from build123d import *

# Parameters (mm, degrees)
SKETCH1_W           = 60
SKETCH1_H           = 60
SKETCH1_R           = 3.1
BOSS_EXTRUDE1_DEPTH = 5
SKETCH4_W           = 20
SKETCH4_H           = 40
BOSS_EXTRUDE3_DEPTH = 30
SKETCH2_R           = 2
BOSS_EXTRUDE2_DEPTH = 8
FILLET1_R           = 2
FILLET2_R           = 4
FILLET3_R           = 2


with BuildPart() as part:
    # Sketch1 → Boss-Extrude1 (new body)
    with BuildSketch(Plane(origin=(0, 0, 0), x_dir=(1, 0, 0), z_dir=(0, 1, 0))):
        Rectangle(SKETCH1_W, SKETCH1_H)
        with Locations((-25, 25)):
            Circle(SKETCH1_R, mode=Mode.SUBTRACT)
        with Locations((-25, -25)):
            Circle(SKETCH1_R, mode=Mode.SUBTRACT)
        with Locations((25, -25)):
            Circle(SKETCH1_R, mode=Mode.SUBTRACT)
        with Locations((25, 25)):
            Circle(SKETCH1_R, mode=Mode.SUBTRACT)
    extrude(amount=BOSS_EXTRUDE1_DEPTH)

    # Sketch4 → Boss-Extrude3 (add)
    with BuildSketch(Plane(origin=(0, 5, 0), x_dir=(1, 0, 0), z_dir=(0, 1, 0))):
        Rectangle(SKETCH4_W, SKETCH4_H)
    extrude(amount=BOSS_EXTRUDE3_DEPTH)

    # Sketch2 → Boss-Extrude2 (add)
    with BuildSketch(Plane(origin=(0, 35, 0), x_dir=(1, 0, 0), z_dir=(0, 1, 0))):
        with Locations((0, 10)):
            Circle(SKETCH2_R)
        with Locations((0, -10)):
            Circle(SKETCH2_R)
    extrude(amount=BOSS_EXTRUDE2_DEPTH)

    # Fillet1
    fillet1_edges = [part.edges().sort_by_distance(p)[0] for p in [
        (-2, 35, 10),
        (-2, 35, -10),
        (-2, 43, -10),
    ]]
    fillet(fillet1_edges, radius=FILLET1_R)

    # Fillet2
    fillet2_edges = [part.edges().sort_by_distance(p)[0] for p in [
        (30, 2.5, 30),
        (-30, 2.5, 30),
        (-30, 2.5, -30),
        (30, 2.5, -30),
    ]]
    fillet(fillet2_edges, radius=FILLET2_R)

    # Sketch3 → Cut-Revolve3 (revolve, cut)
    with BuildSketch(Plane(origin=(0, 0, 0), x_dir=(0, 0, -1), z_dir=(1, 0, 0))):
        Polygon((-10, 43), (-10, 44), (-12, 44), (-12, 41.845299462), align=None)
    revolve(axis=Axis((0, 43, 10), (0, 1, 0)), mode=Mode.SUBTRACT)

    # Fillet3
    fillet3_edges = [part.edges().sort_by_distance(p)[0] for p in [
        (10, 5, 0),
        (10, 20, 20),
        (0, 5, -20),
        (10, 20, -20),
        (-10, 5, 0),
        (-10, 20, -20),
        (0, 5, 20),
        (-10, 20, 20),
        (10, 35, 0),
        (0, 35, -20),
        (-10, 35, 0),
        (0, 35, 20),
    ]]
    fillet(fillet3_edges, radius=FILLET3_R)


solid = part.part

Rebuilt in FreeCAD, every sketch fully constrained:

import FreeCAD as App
import Part
import Sketcher
Q = App.Units.Quantity


def edges_at(feature, points):
    """Names of the edges that pass closest to the given points."""
    edges = feature.Shape.Edges
    near = lambda p: min(range(len(edges)), key=lambda i: edges[i].distToShape(Part.Vertex(*p))[0])
    return sorted({f"Edge{near(p) + 1}" for p in points})


def add_polygon(sketch, points):
    """Adds a closed chain of lines whose ends are joined by coincident constraints."""
    first, n = sketch.GeometryCount, len(points)
    for a, b in zip(points, points[1:] + points[:1]):
        sketch.addGeometry(Part.LineSegment(App.Vector(*a, 0), App.Vector(*b, 0)), False)
    for i in range(n):
        sketch.addConstraint(Sketcher.Constraint("Coincident", first + i, 2, first + (i + 1) % n, 1))

doc = App.newDocument("Part")
body = doc.addObject("PartDesign::Body", "Body")

# Sketch on XZ plane
sketch1 = doc.addObject("Sketcher::SketchObject", "Sketch")
body.addObject(sketch1)
sketch1.AttachmentSupport = (doc.XZ_Plane, [""])
sketch1.MapMode = "FlatFace"
add_polygon(sketch1, [(-30, -30), (-30, 30), (30, 30), (30, -30)])  # lines 0-3
sketch1.addGeometry(Part.Circle(App.Vector(-25, 25, 0), App.Vector(0, 0, 1), 3.1), False)  # 4
sketch1.addGeometry(Part.Circle(App.Vector(25, 25, 0), App.Vector(0, 0, 1), 3.1), False)  # 5
sketch1.addGeometry(Part.Circle(App.Vector(-25, -25, 0), App.Vector(0, 0, 1), 3.1), False)  # 6
sketch1.addGeometry(Part.Circle(App.Vector(25, -25, 0), App.Vector(0, 0, 1), 3.1), False)  # 7
sketch1.addConstraint([
    Sketcher.Constraint("Vertical", 0),
    Sketcher.Constraint("Horizontal", 1),
    Sketcher.Constraint("Vertical", 2),
    Sketcher.Constraint("Horizontal", 3),
    Sketcher.Constraint("Equal", 4, 5),
    Sketcher.Constraint("Equal", 5, 6),
    Sketcher.Constraint("Equal", 6, 7),
    Sketcher.Constraint("Symmetric", 5, 3, 6, 3, -1, 1),
    Sketcher.Constraint("Symmetric", 4, 3, 7, 3, -1, 1),
    Sketcher.Constraint("Symmetric", 0, 2, 2, 2, -1, 1),
    Sketcher.Constraint("Symmetric", 4, 3, 5, 3, -2),
    Sketcher.Constraint("Equal", 3, 0),
    Sketcher.Constraint("Diameter", 4, Q("6.2 mm")),
    Sketcher.Constraint("DistanceX", 1, 1, 1, 2, Q("60 mm")),
    Sketcher.Constraint("DistanceX", 4, 3, -1, 1, Q("25 mm")),
    Sketcher.Constraint("DistanceY", -1, 1, 4, 3, Q("25 mm")),
])
pad1 = doc.addObject("PartDesign::Pad", "Pad")
body.addObject(pad1)
pad1.Profile = sketch1
pad1.Length = 5
pad1.Reversed = True

# Sketch on XZ plane
sketch2 = doc.addObject("Sketcher::SketchObject", "Sketch001")
body.addObject(sketch2)
sketch2.AttachmentSupport = (doc.XZ_Plane, [""])
sketch2.MapMode = "FlatFace"
sketch2.AttachmentOffset = App.Placement(App.Vector(0, 0, -5), App.Rotation())
add_polygon(sketch2, [(-10, -20), (-10, 20), (10, 20), (10, -20)])  # lines 0-3
sketch2.addConstraint([
    Sketcher.Constraint("Vertical", 0),
    Sketcher.Constraint("Horizontal", 1),
    Sketcher.Constraint("Vertical", 2),
    Sketcher.Constraint("Horizontal", 3),
    Sketcher.Constraint("Symmetric", 0, 2, 2, 2, -1, 1),
    Sketcher.Constraint("DistanceX", 1, 1, 1, 2, Q("20 mm")),
    Sketcher.Constraint("DistanceY", 0, 1, 0, 2, Q("40 mm")),
])
pad2 = doc.addObject("PartDesign::Pad", "Pad001")
body.addObject(pad2)
pad2.Profile = sketch2
pad2.Length = 30
pad2.Reversed = True

# Sketch on XZ plane
sketch3 = doc.addObject("Sketcher::SketchObject", "Sketch002")
body.addObject(sketch3)
sketch3.AttachmentSupport = (doc.XZ_Plane, [""])
sketch3.MapMode = "FlatFace"
sketch3.AttachmentOffset = App.Placement(App.Vector(0, 0, -35), App.Rotation())
sketch3.addGeometry([
    Part.Circle(App.Vector(0, -10, 0), App.Vector(0, 0, 1), 2),
    Part.Circle(App.Vector(0, 10, 0), App.Vector(0, 0, 1), 2),
], False)
sketch3.addConstraint([
    Sketcher.Constraint("Equal", 0, 1),
    Sketcher.Constraint("Symmetric", 0, 3, 1, 3, -1, 1),
    Sketcher.Constraint("PointOnObject", 0, 3, -2),
    Sketcher.Constraint("Diameter", 0, Q("4 mm")),
    Sketcher.Constraint("DistanceY", 0, 3, -1, 1, Q("10 mm")),
])
pad3 = doc.addObject("PartDesign::Pad", "Pad002")
body.addObject(pad3)
pad3.Profile = sketch3
pad3.Length = 8
pad3.Reversed = True
doc.recompute()

fillet = doc.addObject("PartDesign::Fillet", "Fillet")
body.addObject(fillet)
fillet.Base = (pad3, edges_at(pad3, [(-2, 35, 10), (-2, 35, -10), (-2, 43, -10)]))
fillet.Radius = 2
doc.recompute()

fillet2 = doc.addObject("PartDesign::Fillet", "Fillet001")
body.addObject(fillet2)
fillet2.Base = (fillet, edges_at(fillet, [
    (30, 2.5, 30),
    (-30, 2.5, 30),
    (-30, 2.5, -30),
    (30, 2.5, -30),
]))
fillet2.Radius = 4

# Sketch on YZ plane
sketch4 = doc.addObject("Sketcher::SketchObject", "Sketch003")
body.addObject(sketch4)
sketch4.AttachmentSupport = (doc.YZ_Plane, [""])
sketch4.MapMode = "FlatFace"
add_polygon(sketch4, [(43, 10), (44, 10), (44, 12), (41.845299, 12)])  # lines 0-3
sketch4.addGeometry(Part.LineSegment(App.Vector(41.845299, 10, 0), App.Vector(44, 10, 0)), True)  # axis
sketch4.addConstraint([
    Sketcher.Constraint("Horizontal", 0),
    Sketcher.Constraint("Vertical", 1),
    Sketcher.Constraint("Horizontal", 2),
    Sketcher.Constraint("Horizontal", 4),
    Sketcher.Constraint("Coincident", 4, 2, 0, 2),
    Sketcher.Constraint("Vertical", 2, 2, 4, 1),
    Sketcher.Constraint("DistanceX", 0, 1, 0, 2, Q("1 mm")),
    Sketcher.Constraint("DistanceY", 1, 1, 1, 2, Q("2 mm")),
    Sketcher.Constraint("Angle", 3, Q("-60 deg")),
    Sketcher.Constraint("DistanceX", -1, 1, 0, 2, Q("44 mm")),
    Sketcher.Constraint("DistanceY", -1, 1, 0, 2, Q("10 mm")),
])
groove = doc.addObject("PartDesign::Groove", "Groove")
body.addObject(groove)
groove.Profile = sketch4
groove.ReferenceAxis = (sketch4, ["Axis0"])
groove.Angle = 360
doc.recompute()

fillet3 = doc.addObject("PartDesign::Fillet", "Fillet002")
body.addObject(fillet3)
fillet3.Base = (groove, edges_at(groove, [
    (10, 5, 0),
    (10, 20, 20),
    (0, 5, -20),
    (10, 20, -20),
    (-10, 5, 0),
    (-10, 20, -20),
    (0, 5, 20),
    (-10, 20, 20),
    (10, 35, 0),
    (0, 35, -20),
    (-10, 35, 0),
    (0, 35, 20),
]))
fillet3.Radius = 2

doc.recompute()
